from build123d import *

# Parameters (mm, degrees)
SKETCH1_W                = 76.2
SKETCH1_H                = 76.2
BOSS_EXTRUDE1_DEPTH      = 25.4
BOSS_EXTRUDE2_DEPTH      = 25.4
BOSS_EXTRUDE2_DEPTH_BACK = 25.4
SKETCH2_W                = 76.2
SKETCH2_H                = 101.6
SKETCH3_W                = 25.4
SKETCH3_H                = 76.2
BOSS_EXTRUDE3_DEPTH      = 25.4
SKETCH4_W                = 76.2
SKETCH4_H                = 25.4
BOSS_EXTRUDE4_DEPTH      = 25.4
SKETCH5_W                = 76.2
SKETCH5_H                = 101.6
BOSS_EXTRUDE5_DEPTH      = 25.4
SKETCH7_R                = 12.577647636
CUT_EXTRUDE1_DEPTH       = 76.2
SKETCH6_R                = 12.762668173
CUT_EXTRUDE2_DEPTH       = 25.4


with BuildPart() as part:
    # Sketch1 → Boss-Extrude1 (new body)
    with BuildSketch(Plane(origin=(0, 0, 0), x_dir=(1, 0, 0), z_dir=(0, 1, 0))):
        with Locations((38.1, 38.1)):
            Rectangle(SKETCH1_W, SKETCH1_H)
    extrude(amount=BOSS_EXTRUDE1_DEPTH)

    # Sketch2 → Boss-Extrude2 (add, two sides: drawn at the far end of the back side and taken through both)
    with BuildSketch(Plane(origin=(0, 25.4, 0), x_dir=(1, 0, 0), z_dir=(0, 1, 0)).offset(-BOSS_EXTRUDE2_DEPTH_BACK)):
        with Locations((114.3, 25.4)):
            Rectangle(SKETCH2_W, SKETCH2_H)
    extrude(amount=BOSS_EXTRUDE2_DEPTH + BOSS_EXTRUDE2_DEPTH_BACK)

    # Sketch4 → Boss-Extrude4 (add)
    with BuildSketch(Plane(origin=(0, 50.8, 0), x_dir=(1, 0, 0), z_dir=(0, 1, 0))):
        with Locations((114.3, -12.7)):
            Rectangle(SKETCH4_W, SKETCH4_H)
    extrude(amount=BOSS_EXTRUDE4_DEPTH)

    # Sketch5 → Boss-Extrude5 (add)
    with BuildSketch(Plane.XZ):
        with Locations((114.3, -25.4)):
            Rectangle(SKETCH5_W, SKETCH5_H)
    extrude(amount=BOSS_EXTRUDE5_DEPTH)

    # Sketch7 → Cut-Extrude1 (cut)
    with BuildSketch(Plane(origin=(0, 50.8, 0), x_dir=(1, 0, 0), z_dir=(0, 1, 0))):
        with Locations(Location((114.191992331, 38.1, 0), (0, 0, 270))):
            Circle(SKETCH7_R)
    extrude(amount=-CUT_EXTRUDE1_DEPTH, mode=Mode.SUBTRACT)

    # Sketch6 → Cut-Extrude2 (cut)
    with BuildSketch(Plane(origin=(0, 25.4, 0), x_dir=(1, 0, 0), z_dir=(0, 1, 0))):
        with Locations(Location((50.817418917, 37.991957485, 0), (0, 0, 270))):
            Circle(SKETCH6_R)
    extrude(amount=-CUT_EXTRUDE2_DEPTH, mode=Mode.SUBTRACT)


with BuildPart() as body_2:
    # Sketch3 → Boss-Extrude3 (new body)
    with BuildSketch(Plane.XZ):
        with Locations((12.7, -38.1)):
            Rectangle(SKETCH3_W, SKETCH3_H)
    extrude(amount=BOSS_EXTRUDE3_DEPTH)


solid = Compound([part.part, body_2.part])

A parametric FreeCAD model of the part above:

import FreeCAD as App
import Part
import Sketcher

V = App.Vector
Q = App.Units.Quantity


def add_polygon(sketch, points):
    """Adds a closed chain of lines whose ends are joined by coincident constraints."""
    first, n = sketch.GeometryCount, len(points)
    for a, b in zip(points, points[1:] + points[:1]):
        sketch.addGeometry(Part.LineSegment(App.Vector(*a, 0), App.Vector(*b, 0)), False)
    for i in range(n):
        sketch.addConstraint(Sketcher.Constraint("Coincident", first + i, 2, first + (i + 1) % n, 1))

doc = App.newDocument("Part")
body = doc.addObject("PartDesign::Body", "Body")

# Sketch on XZ plane
sketch1 = body.newObject("Sketcher::SketchObject", "Sketch")
sketch1.AttachmentSupport = (doc.getObject("XZ_Plane"), [""])
sketch1.MapMode = "FlatFace"
add_polygon(sketch1, [(0, -76.2), (0, 0), (76.2, 0), (76.2, -76.2)])  # lines 0-3
sketch1.addConstraint(Sketcher.Constraint("Vertical", 0))
sketch1.addConstraint(Sketcher.Constraint("Horizontal", 1))
sketch1.addConstraint(Sketcher.Constraint("Vertical", 2))
sketch1.addConstraint(Sketcher.Constraint("Horizontal", 3))
sketch1.addConstraint(Sketcher.Constraint("Coincident", 0, 2, -1, 1))
sketch1.addConstraint(Sketcher.Constraint("Equal", 3, 0))
sketch1.addConstraint(Sketcher.Constraint("DistanceX", 1, 1, 1, 2, Q("3 in")))
pad1 = body.newObject("PartDesign::Pad", "Pad")
pad1.Profile = sketch1
pad1.Length = Q("1 in")
pad1.Reversed = True

# Sketch on XZ plane
sketch2 = body.newObject("Sketcher::SketchObject", "Sketch001")
sketch2.AttachmentSupport = (doc.getObject("XZ_Plane"), [""])
sketch2.MapMode = "FlatFace"
sketch2.AttachmentOffset = App.Placement(V(0, 0, -1 * 25.4), App.Rotation())
add_polygon(sketch2, [(76.2, -76.2), (76.2, 25.4), (152.4, 25.4), (152.4, -76.2)])  # lines 0-3
sketch2.addConstraint(Sketcher.Constraint("Vertical", 0))
sketch2.addConstraint(Sketcher.Constraint("Horizontal", 1))
sketch2.addConstraint(Sketcher.Constraint("Vertical", 2))
sketch2.addConstraint(Sketcher.Constraint("Horizontal", 3))
sketch2.addConstraint(Sketcher.Constraint("DistanceX", 1, 1, 1, 2, Q("3 in")))
sketch2.addConstraint(Sketcher.Constraint("DistanceY", 0, 1, 0, 2, Q("4 in")))
sketch2.addConstraint(Sketcher.Constraint("DistanceX", -1, 1, 0, 2, Q("3 in")))
sketch2.addConstraint(Sketcher.Constraint("DistanceY", -1, 1, 0, 2, Q("1 in")))
pad2 = body.newObject("PartDesign::Pad", "Pad001")
pad2.Profile = sketch2
pad2.Type = "TwoLengths"
pad2.Length = Q("1 in")
pad2.Length2 = Q("1 in")
pad2.Reversed = True

# Sketch on XZ plane
sketch3 = body.newObject("Sketcher::SketchObject", "Sketch002")
sketch3.AttachmentSupport = (doc.getObject("XZ_Plane"), [""])
sketch3.MapMode = "FlatFace"
sketch3.AttachmentOffset = App.Placement(V(0, 0, -2 * 25.4), App.Rotation())
add_polygon(sketch3, [(76.2, 0), (76.2, 25.4), (152.4, 25.4), (152.4, 0)])  # lines 0-3
sketch3.addConstraint(Sketcher.Constraint("Vertical", 0))
sketch3.addConstraint(Sketcher.Constraint("Horizontal", 1))
sketch3.addConstraint(Sketcher.Constraint("Vertical", 2))
sketch3.addConstraint(Sketcher.Constraint("Horizontal", 3))
sketch3.addConstraint(Sketcher.Constraint("PointOnObject", 2, 2, -1))
sketch3.addConstraint(Sketcher.Constraint("DistanceX", 1, 1, 1, 2, Q("3 in")))
sketch3.addConstraint(Sketcher.Constraint("DistanceY", 0, 1, 0, 2, Q("1 in")))
sketch3.addConstraint(Sketcher.Constraint("DistanceX", -1, 1, 0, 2, Q("3 in")))
pad3 = body.newObject("PartDesign::Pad", "Pad002")
pad3.Profile = sketch3
pad3.Length = Q("1 in")
pad3.Reversed = True

# Sketch on XZ plane
sketch4 = body.newObject("Sketcher::SketchObject", "Sketch003")
sketch4.AttachmentSupport = (doc.getObject("XZ_Plane"), [""])
sketch4.MapMode = "FlatFace"
add_polygon(sketch4, [(76.2, 25.4), (76.2, -76.2), (152.4, -76.2), (152.4, 25.4)])  # lines 0-3
sketch4.addConstraint(Sketcher.Constraint("Vertical", 0))
sketch4.addConstraint(Sketcher.Constraint("Horizontal", 1))
sketch4.addConstraint(Sketcher.Constraint("Vertical", 2))
sketch4.addConstraint(Sketcher.Constraint("Horizontal", 3))
sketch4.addConstraint(Sketcher.Constraint("DistanceX", 1, 1, 1, 2, Q("3 in")))
sketch4.addConstraint(Sketcher.Constraint("DistanceY", 0, 2, 0, 1, Q("4 in")))
sketch4.addConstraint(Sketcher.Constraint("DistanceX", -1, 1, 0, 2, Q("3 in")))
sketch4.addConstraint(Sketcher.Constraint("DistanceY", 0, 2, -1, 1, Q("3 in")))
pad4 = body.newObject("PartDesign::Pad", "Pad003")
pad4.Profile = sketch4
pad4.Length = Q("1 in")

# Sketch on XZ plane
sketch5 = body.newObject("Sketcher::SketchObject", "Sketch004")
sketch5.AttachmentSupport = (doc.getObject("XZ_Plane"), [""])
sketch5.MapMode = "FlatFace"
sketch5.AttachmentOffset = App.Placement(V(0, 0, -2 * 25.4), App.Rotation())
sketch5.addGeometry(Part.Circle(V(114.191992, -38.1, 0), V(0, 0, 1), 12.577648), False)
sketch5.addConstraint(Sketcher.Constraint("DistanceY", 0, 3, -1, 1, Q("1.5 in")))
sketch5.addConstraint(Sketcher.Constraint("Diameter", 0, Q("25.155295 mm")))
sketch5.addConstraint(Sketcher.Constraint("DistanceX", -1, 1, 0, 3, Q("114.191992 mm")))
pocket1 = body.newObject("PartDesign::Pocket", "Pocket")
pocket1.Profile = sketch5
pocket1.Length = Q("3 in")
pocket1.Reversed = True

# Sketch on XZ plane
sketch6 = body.newObject("Sketcher::SketchObject", "Sketch005")
sketch6.AttachmentSupport = (doc.getObject("XZ_Plane"), [""])
sketch6.MapMode = "FlatFace"
sketch6.AttachmentOffset = App.Placement(V(0, 0, -1 * 25.4), App.Rotation())
sketch6.addGeometry(Part.Circle(V(50.817419, -37.991957, 0), V(0, 0, 1), 12.762668), False)
sketch6.addConstraint(Sketcher.Constraint("Diameter", 0, Q("25.525336 mm")))
sketch6.addConstraint(Sketcher.Constraint("DistanceX", -1, 1, 0, 3, Q("50.817419 mm")))
sketch6.addConstraint(Sketcher.Constraint("DistanceY", 0, 3, -1, 1, Q("37.991957 mm")))
pocket2 = body.newObject("PartDesign::Pocket", "Pocket001")
pocket2.Profile = sketch6
pocket2.Length = Q("1 in")
pocket2.Reversed = True
body2 = doc.addObject("PartDesign::Body", "Body001")

# Sketch on XZ plane
sketch7 = body2.newObject("Sketcher::SketchObject", "Sketch006")
sketch7.AttachmentSupport = (doc.getObject("XZ_Plane001"), [""])
sketch7.MapMode = "FlatFace"
add_polygon(sketch7, [(0, 0), (0, -76.2), (25.4, -76.2), (25.4, 0)])  # lines 0-3
sketch7.addConstraint(Sketcher.Constraint("Vertical", 0))
sketch7.addConstraint(Sketcher.Constraint("Horizontal", 1))
sketch7.addConstraint(Sketcher.Constraint("Vertical", 2))
sketch7.addConstraint(Sketcher.Constraint("Horizontal", 3))
sketch7.addConstraint(Sketcher.Constraint("Coincident", 3, 2, -1, 1))
sketch7.addConstraint(Sketcher.Constraint("DistanceX", 1, 1, 1, 2, Q("1 in")))
sketch7.addConstraint(Sketcher.Constraint("DistanceY", 0, 2, 0, 1, Q("3 in")))
pad5 = body2.newObject("PartDesign::Pad", "Pad004")
pad5.Profile = sketch7
pad5.Length = Q("1 in")

doc.recompute()
